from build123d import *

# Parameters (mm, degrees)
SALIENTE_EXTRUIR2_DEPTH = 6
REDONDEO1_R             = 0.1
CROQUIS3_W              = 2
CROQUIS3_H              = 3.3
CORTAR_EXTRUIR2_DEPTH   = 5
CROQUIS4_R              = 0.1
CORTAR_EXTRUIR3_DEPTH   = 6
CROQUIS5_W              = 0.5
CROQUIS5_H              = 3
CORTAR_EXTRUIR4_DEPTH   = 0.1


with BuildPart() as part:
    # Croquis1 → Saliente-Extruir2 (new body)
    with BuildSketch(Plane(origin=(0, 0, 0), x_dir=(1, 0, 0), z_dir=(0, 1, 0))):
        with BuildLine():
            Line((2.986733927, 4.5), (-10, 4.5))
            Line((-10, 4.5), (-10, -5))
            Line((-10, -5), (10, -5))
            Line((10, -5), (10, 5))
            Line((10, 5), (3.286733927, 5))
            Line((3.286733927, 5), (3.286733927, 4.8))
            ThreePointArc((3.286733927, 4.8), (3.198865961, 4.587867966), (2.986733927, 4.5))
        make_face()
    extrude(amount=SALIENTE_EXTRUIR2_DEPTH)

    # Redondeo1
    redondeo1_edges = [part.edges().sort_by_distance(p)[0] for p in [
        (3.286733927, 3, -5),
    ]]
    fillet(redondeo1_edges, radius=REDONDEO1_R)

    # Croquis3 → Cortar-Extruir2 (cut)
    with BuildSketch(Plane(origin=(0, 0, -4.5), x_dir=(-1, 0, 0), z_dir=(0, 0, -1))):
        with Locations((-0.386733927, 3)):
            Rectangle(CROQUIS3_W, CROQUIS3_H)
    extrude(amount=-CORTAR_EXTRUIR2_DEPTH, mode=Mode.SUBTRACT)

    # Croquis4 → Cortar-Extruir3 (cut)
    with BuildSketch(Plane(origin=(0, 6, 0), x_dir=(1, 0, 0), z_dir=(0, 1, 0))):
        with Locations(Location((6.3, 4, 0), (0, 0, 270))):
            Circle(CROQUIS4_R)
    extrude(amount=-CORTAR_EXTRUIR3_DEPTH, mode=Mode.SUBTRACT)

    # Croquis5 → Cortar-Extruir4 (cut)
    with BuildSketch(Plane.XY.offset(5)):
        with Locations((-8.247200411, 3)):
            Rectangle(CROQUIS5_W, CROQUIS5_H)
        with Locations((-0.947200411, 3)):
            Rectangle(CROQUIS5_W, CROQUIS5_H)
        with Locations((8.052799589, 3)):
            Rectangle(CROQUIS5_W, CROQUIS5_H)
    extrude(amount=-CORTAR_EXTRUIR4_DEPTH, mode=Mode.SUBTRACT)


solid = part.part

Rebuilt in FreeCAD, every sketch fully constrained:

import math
import FreeCAD as App
import Part
import Sketcher

V = App.Vector
Q = App.Units.Quantity


def edges_at(feature, points):
    """Names of the edges that pass closest to the given points."""
    edges = feature.Shape.Edges
    near = lambda p: min(range(len(edges)), key=lambda i: edges[i].distToShape(Part.Vertex(*p))[0])
    return sorted({f"Edge{near(p) + 1}" for p in points})

doc = App.newDocument("Part")
body = doc.addObject("PartDesign::Body", "Body")

# Sketch on XZ plane
sketch1 = body.newObject("Sketcher::SketchObject", "Sketch")
sketch1.AttachmentSupport = (doc.getObject("XZ_Plane"), [""])
sketch1.MapMode = "FlatFace"
sketch1.addGeometry([
    Part.LineSegment(V(2.986734, -4.5, 0), V(-10, -4.5, 0)),  # 0
    Part.LineSegment(V(-10, -4.5, 0), V(-10, 5, 0)),  # 1
    Part.LineSegment(V(-10, 5, 0), V(10, 5, 0)),  # 2
    Part.LineSegment(V(10, 5, 0), V(10, -5, 0)),  # 3
    Part.LineSegment(V(10, -5, 0), V(3.286734, -5, 0)),  # 4
    Part.LineSegment(V(3.286734, -5, 0), V(3.286734, -4.8, 0)),  # 5
    Part.ArcOfCircle(Part.Circle(V(2.986734, -4.8, 0), V(0, 0, 1), 0.3), math.radians(0), math.radians(90)),  # 6
], False)
sketch1.addConstraint([
    Sketcher.Constraint("Coincident", 0, 2, 1, 1),
    Sketcher.Constraint("Coincident", 1, 2, 2, 1),
    Sketcher.Constraint("Coincident", 2, 2, 3, 1),
    Sketcher.Constraint("Coincident", 3, 2, 4, 1),
    Sketcher.Constraint("Coincident", 4, 2, 5, 1),
    Sketcher.Constraint("Tangent", 5, 2, 6, 1),
    Sketcher.Constraint("Tangent", 6, 2, 0, 1),
    Sketcher.Constraint("Horizontal", 0),
    Sketcher.Constraint("Vertical", 1),
    Sketcher.Constraint("Horizontal", 2),
    Sketcher.Constraint("Vertical", 3),
    Sketcher.Constraint("Horizontal", 4),
    Sketcher.Constraint("Vertical", 5),
    Sketcher.Constraint("Symmetric", 1, 2, 3, 2, -1, 1),
    Sketcher.Constraint("Radius", 6, Q("0.3 mm")),
    Sketcher.Constraint("DistanceX", 2, 1, 2, 2, Q("20 mm")),
    Sketcher.Constraint("DistanceY", 3, 2, 3, 1, Q("10 mm")),
    Sketcher.Constraint("DistanceY", 1, 1, 1, 2, Q("9.5 mm")),
    Sketcher.Constraint("DistanceX", 0, 2, 0, 1, Q("12.986734 mm")),
])
pad1 = body.newObject("PartDesign::Pad", "Pad")
pad1.Profile = sketch1
pad1.Length = 6
pad1.Reversed = True
doc.recompute()

fillet = body.newObject("PartDesign::Fillet", "Fillet")
fillet.Base = (pad1, edges_at(pad1, [(3.287, 3, -5)]))
fillet.Radius = 0.1

# Sketch on XY plane
sketch2 = body.newObject("Sketcher::SketchObject", "Sketch001")
sketch2.AttachmentSupport = (doc.getObject("XY_Plane"), [""])
sketch2.MapMode = "FlatFace"
sketch2.AttachmentOffset = App.Placement(V(0, 0, -4.5), App.Rotation())
sketch2.addGeometry([
    Part.LineSegment(V(1.386734, 4.65, 0), V(1.386734, 1.35, 0)),
    Part.LineSegment(V(1.386734, 1.35, 0), V(-0.613266, 1.35, 0)),
    Part.LineSegment(V(-0.613266, 1.35, 0), V(-0.613266, 4.65, 0)),
    Part.LineSegment(V(-0.613266, 4.65, 0), V(1.386734, 4.65, 0)),
], False)
sketch2.addConstraint([
    Sketcher.Constraint("Coincident", 0, 2, 1, 1),
    Sketcher.Constraint("Coincident", 1, 2, 2, 1),
    Sketcher.Constraint("Coincident", 2, 2, 3, 1),
    Sketcher.Constraint("Coincident", 3, 2, 0, 1),
    Sketcher.Constraint("Vertical", 0),
    Sketcher.Constraint("Horizontal", 1),
    Sketcher.Constraint("Vertical", 2),
    Sketcher.Constraint("Horizontal", 3),
    Sketcher.Constraint("DistanceX", 1, 2, 1, 1, Q("2 mm")),
    Sketcher.Constraint("DistanceY", 0, 2, 0, 1, Q("3.3 mm")),
    Sketcher.Constraint("DistanceY", -1, 1, 0, 2, Q("1.35 mm")),
    Sketcher.Constraint("DistanceX", -1, 1, 0, 2, Q("1.386734 mm")),
])
pocket1 = body.newObject("PartDesign::Pocket", "Pocket")
pocket1.Profile = sketch2
pocket1.Length = 5
pocket1.Reversed = True

# Sketch on XZ plane
sketch3 = body.newObject("Sketcher::SketchObject", "Sketch002")
sketch3.AttachmentSupport = (doc.getObject("XZ_Plane"), [""])
sketch3.MapMode = "FlatFace"
sketch3.AttachmentOffset = App.Placement(V(0, 0, -6), App.Rotation())
sketch3.addGeometry(Part.Circle(V(6.3, -4, 0), V(0, 0, 1), 0.1), False)
sketch3.addConstraint([
    Sketcher.Constraint("Diameter", 0, Q("0.2 mm")),
    Sketcher.Constraint("DistanceY", 0, 3, -1, 1, Q("4 mm")),
    Sketcher.Constraint("DistanceX", -1, 1, 0, 3, Q("6.3 mm")),
])
pocket2 = body.newObject("PartDesign::Pocket", "Pocket001")
pocket2.Profile = sketch3
pocket2.Length = 6
pocket2.Reversed = True

# Sketch on XY plane
sketch4 = body.newObject("Sketcher::SketchObject", "Sketch003")
sketch4.AttachmentSupport = (doc.getObject("XY_Plane"), [""])
sketch4.MapMode = "FlatFace"
sketch4.AttachmentOffset = App.Placement(V(0, 0, 5), App.Rotation())
sketch4.addGeometry([
    Part.LineSegment(V(-8.4972, 4.5, 0), V(-8.4972, 1.5, 0)),  # 0
    Part.LineSegment(V(-8.4972, 1.5, 0), V(-7.9972, 1.5, 0)),  # 1
    Part.LineSegment(V(-7.9972, 1.5, 0), V(-7.9972, 4.5, 0)),  # 2
    Part.LineSegment(V(-7.9972, 4.5, 0), V(-8.4972, 4.5, 0)),  # 3
    Part.LineSegment(V(-1.1972, 4.5, 0), V(-1.1972, 1.5, 0)),  # 4
    Part.LineSegment(V(-1.1972, 1.5, 0), V(-0.6972, 1.5, 0)),  # 5
    Part.LineSegment(V(-0.6972, 1.5, 0), V(-0.6972, 4.5, 0)),  # 6
    Part.LineSegment(V(-0.6972, 4.5, 0), V(-1.1972, 4.5, 0)),  # 7
    Part.LineSegment(V(7.8028, 4.5, 0), V(7.8028, 1.5, 0)),  # 8
    Part.LineSegment(V(7.8028, 1.5, 0), V(8.3028, 1.5, 0)),  # 9
    Part.LineSegment(V(8.3028, 1.5, 0), V(8.3028, 4.5, 0)),  # 10
    Part.LineSegment(V(8.3028, 4.5, 0), V(7.8028, 4.5, 0)),  # 11
], False)
sketch4.addConstraint([
    Sketcher.Constraint("Coincident", 0, 2, 1, 1),
    Sketcher.Constraint("Coincident", 1, 2, 2, 1),
    Sketcher.Constraint("Coincident", 2, 2, 3, 1),
    Sketcher.Constraint("Coincident", 3, 2, 0, 1),
    Sketcher.Constraint("Coincident", 4, 2, 5, 1),
    Sketcher.Constraint("Coincident", 5, 2, 6, 1),
    Sketcher.Constraint("Coincident", 6, 2, 7, 1),
    Sketcher.Constraint("Coincident", 7, 2, 4, 1),
    Sketcher.Constraint("Coincident", 8, 2, 9, 1),
    Sketcher.Constraint("Coincident", 9, 2, 10, 1),
    Sketcher.Constraint("Coincident", 10, 2, 11, 1),
    Sketcher.Constraint("Coincident", 11, 2, 8, 1),
    Sketcher.Constraint("Vertical", 0),
    Sketcher.Constraint("Horizontal", 1),
    Sketcher.Constraint("Vertical", 2),
    Sketcher.Constraint("Horizontal", 3),
    Sketcher.Constraint("Vertical", 4),
    Sketcher.Constraint("Horizontal", 5),
    Sketcher.Constraint("Vertical", 6),
    Sketcher.Constraint("Horizontal", 7),
    Sketcher.Constraint("Vertical", 8),
    Sketcher.Constraint("Horizontal", 9),
    Sketcher.Constraint("Vertical", 10),
    Sketcher.Constraint("Horizontal", 11),
    Sketcher.Constraint("Horizontal", 1, 2, 4, 2),
    Sketcher.Constraint("Horizontal", 3, 2, 6, 2),
    Sketcher.Constraint("Horizontal", 5, 2, 8, 2),
    Sketcher.Constraint("Horizontal", 7, 2, 10, 2),
    Sketcher.Constraint("Equal", 3, 5),
    Sketcher.Constraint("Equal", 7, 9),
    Sketcher.Constraint("DistanceY", 0, 2, 0, 1, Q("3 mm")),
    Sketcher.Constraint("DistanceX", 1, 1, 1, 2, Q("0.5 mm")),
    Sketcher.Constraint("DistanceX", 4, 2, 8, 2, Q("9 mm")),
    Sketcher.Constraint("DistanceY", -1, 1, 0, 2, Q("1.5 mm")),
    Sketcher.Constraint("DistanceX", 1, 2, 4, 2, Q("6.8 mm")),
    Sketcher.Constraint("DistanceX", 0, 2, -1, 1, Q("8.4972 mm")),
])
pocket3 = body.newObject("PartDesign::Pocket", "Pocket002")
pocket3.Profile = sketch4
pocket3.Length = 0.1

doc.recompute()
